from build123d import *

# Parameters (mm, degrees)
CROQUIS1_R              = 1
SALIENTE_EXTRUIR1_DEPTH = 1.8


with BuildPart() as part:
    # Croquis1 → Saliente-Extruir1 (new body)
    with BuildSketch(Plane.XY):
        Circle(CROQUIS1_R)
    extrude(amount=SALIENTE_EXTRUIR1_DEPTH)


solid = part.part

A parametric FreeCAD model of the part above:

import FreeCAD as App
import Part
import Sketcher
Q = App.Units.Quantity

doc = App.newDocument("Part")
body = doc.addObject("PartDesign::Body", "Body")

sketch1 = body.newObject("Sketcher::SketchObject", "Sketch")
sketch1.AttachmentSupport = (doc.getObject("XY_Plane"), [""])
sketch1.MapMode = "FlatFace"
sketch1.addGeometry(Part.Circle(App.Vector(0, 0, 0), App.Vector(0, 0, 1), 1), False)
sketch1.addConstraint([
    Sketcher.Constraint("Coincident", 0, 3, -1, 1),
    Sketcher.Constraint("Diameter", 0, Q("2 mm")),
])
pad1 = body.newObject("PartDesign::Pad", "Pad")
pad1.Profile = sketch1
pad1.Length = 1.8

doc.recompute()
